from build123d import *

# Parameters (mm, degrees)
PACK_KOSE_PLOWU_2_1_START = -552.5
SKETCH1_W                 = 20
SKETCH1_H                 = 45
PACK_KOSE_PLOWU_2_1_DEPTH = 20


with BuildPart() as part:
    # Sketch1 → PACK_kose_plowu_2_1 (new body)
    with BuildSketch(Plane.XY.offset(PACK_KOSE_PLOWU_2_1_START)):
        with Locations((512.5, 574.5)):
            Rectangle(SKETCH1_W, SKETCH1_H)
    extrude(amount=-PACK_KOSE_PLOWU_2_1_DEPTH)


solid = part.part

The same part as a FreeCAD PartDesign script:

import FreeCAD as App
import Part
import Sketcher
from FreeCAD import Vector
Q = App.Units.Quantity


def add_polygon(sketch, points):
    """Adds a closed chain of lines whose ends are joined by coincident constraints."""
    first, n = sketch.GeometryCount, len(points)
    for a, b in zip(points, points[1:] + points[:1]):
        sketch.addGeometry(Part.LineSegment(App.Vector(*a, 0), App.Vector(*b, 0)), False)
    for i in range(n):
        sketch.addConstraint(Sketcher.Constraint("Coincident", first + i, 2, first + (i + 1) % n, 1))

doc = App.newDocument("Part")
body = doc.addObject("PartDesign::Body", "Body")

sketch1 = body.newObject("Sketcher::SketchObject", "Sketch")
sketch1.AttachmentSupport = (doc.getObject("XY_Plane"), [""])
sketch1.MapMode = "FlatFace"
sketch1.AttachmentOffset = App.Placement(Vector(0, 0, -552.5), App.Rotation())
add_polygon(sketch1, [(502.5, 597), (502.5, 552), (522.5, 552), (522.5, 597)])
sketch1.addConstraint(Sketcher.Constraint("Vertical", 0))
sketch1.addConstraint(Sketcher.Constraint("Horizontal", 1))
sketch1.addConstraint(Sketcher.Constraint("Vertical", 2))
sketch1.addConstraint(Sketcher.Constraint("Horizontal", 3))
sketch1.addConstraint(Sketcher.Constraint("DistanceX", 1, 1, 1, 2, Q("20 mm")))
sketch1.addConstraint(Sketcher.Constraint("DistanceY", 0, 2, 0, 1, Q("45 mm")))
sketch1.addConstraint(Sketcher.Constraint("DistanceY", -1, 1, 0, 2, Q("552 mm")))
sketch1.addConstraint(Sketcher.Constraint("DistanceX", -1, 1, 0, 2, Q("502.5 mm")))
pad1 = body.newObject("PartDesign::Pad", "Pad")
pad1.Profile = sketch1
pad1.Length = 20
pad1.Reversed = True

doc.recompute()
